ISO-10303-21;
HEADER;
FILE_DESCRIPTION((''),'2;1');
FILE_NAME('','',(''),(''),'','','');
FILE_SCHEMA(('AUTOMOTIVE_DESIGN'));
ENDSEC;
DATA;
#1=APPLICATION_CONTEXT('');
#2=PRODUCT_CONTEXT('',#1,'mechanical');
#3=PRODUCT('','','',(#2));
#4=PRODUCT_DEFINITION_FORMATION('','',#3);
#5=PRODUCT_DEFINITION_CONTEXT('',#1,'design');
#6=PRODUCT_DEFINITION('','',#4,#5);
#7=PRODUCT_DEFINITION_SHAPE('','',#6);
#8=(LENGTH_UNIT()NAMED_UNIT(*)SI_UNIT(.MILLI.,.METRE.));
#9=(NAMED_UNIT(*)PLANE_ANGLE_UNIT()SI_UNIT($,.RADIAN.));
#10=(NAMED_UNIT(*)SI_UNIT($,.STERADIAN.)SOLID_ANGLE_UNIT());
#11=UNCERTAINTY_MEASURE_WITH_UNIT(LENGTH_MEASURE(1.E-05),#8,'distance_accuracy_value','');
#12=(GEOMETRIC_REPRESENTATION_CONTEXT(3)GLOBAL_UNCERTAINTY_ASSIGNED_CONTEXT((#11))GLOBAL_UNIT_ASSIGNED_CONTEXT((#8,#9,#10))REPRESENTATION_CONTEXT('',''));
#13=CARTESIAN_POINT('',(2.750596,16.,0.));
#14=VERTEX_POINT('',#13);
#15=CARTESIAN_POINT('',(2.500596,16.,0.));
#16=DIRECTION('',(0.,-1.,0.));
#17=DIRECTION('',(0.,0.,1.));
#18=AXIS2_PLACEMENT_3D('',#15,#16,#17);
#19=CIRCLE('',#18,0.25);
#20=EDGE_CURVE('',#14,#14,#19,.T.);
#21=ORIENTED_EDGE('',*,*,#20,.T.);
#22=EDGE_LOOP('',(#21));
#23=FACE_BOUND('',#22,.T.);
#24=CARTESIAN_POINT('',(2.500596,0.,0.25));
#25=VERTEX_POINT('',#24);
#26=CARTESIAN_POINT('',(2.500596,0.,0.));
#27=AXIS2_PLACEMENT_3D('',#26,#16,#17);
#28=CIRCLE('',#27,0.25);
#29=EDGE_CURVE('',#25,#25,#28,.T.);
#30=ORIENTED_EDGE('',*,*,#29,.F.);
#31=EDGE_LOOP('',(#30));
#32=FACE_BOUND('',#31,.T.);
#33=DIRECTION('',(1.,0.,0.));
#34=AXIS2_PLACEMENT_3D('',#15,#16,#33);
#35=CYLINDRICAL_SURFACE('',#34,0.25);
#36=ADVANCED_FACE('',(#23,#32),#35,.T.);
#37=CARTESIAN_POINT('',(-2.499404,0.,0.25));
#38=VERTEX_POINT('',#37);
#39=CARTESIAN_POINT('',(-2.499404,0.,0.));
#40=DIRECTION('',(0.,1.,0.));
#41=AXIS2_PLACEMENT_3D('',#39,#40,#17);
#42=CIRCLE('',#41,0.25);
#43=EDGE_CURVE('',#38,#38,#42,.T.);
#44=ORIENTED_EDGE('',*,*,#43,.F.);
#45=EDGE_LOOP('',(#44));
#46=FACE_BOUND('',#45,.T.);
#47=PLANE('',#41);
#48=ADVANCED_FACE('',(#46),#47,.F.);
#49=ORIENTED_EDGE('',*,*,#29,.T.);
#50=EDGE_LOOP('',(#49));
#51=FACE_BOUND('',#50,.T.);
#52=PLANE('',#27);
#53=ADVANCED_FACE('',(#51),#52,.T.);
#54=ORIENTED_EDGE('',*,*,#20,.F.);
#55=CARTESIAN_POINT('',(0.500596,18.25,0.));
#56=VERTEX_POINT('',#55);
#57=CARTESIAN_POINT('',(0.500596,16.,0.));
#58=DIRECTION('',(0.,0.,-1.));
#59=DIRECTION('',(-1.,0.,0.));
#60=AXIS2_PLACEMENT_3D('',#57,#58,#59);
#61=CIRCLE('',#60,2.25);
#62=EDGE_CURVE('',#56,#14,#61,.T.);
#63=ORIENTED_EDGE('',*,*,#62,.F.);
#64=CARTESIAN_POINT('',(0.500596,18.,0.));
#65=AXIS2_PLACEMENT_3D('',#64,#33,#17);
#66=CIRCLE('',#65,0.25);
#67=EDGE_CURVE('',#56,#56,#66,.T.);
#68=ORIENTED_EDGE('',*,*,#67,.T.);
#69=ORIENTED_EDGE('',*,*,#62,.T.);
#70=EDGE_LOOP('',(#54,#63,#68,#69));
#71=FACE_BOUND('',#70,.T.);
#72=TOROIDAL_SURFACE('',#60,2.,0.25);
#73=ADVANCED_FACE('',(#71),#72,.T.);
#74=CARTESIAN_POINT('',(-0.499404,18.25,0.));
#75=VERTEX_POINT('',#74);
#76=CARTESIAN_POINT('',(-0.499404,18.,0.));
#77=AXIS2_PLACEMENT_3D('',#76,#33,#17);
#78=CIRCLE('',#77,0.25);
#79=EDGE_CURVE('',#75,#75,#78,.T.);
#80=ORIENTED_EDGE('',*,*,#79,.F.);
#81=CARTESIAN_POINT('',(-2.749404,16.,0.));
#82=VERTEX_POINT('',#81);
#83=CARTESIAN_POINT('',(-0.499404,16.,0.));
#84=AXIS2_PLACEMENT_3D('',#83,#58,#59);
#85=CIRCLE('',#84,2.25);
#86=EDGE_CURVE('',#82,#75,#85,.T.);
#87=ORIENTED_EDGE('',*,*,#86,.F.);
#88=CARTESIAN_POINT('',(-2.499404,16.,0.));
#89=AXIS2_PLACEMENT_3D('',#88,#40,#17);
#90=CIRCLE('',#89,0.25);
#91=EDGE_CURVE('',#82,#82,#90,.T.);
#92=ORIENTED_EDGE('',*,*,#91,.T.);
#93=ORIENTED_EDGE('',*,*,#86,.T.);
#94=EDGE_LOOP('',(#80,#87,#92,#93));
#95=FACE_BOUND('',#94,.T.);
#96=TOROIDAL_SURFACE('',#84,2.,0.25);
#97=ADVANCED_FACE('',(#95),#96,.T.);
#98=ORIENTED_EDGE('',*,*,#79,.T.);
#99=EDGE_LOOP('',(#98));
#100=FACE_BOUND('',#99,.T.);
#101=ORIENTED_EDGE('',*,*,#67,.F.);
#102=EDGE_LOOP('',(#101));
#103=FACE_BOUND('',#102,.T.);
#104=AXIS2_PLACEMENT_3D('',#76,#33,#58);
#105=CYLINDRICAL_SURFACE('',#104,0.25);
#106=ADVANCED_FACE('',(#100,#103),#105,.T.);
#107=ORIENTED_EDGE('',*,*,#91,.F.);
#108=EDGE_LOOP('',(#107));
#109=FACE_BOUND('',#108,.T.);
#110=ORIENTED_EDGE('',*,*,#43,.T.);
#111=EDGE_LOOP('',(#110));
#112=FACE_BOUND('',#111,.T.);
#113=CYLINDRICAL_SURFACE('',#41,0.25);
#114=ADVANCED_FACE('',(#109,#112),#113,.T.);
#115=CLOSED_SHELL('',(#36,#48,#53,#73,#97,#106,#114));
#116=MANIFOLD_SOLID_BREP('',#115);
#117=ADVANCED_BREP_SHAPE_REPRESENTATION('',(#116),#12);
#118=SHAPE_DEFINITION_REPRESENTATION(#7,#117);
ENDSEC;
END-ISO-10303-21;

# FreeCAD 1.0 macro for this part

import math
import FreeCAD as App
import Part
import Sketcher

V = App.Vector
Q = App.Units.Quantity

doc = App.newDocument("Part")
body = doc.addObject("PartDesign::Body", "Body")

# Sketch on XZ plane
sketch1 = body.newObject("Sketcher::SketchObject", "Sketch")
sketch1.AttachmentSupport = (doc.getObject("XZ_Plane"), [""])
sketch1.MapMode = "FlatFace"
sketch1.addGeometry(Part.Circle(V(-2.5, 0, 0), V(0, 0, 1), 0.25), False)
sketch1.addConstraint(Sketcher.Constraint("PointOnObject", 0, 3, -1))
sketch1.addConstraint(Sketcher.Constraint("Diameter", 0, Q("0.5 mm")))
sketch1.addConstraint(Sketcher.Constraint("DistanceX", 0, 3, -1, 1, Q("2.499404 mm")))

# Sketch on XY plane
sketch2 = body.newObject("Sketcher::SketchObject", "Sketch001")
sketch2.AttachmentSupport = (doc.getObject("XY_Plane"), [""])
sketch2.MapMode = "FlatFace"
sketch2.addGeometry(Part.LineSegment(V(-2.5, 0, 0), V(-2.5, 16, 0)), False)
sketch2.addGeometry(Part.ArcOfCircle(Part.Circle(V(-0.5, 16, 0), V(0, 0, 1), 2), math.radians(90), math.radians(180)), False)
sketch2.addGeometry(Part.LineSegment(V(-0.5, 18, 0), V(0.5, 18, 0)), False)
sketch2.addGeometry(Part.ArcOfCircle(Part.Circle(V(0.5, 16, 0), V(0, 0, 1), 2), math.radians(0), math.radians(90)), False)
sketch2.addGeometry(Part.LineSegment(V(2.5, 16, 0), V(2.5, 0, 0)), False)
sketch2.addConstraint(Sketcher.Constraint("Tangent", 0, 2, 1, 2))
sketch2.addConstraint(Sketcher.Constraint("Tangent", 1, 1, 2, 1))
sketch2.addConstraint(Sketcher.Constraint("Tangent", 2, 2, 3, 2))
sketch2.addConstraint(Sketcher.Constraint("Tangent", 3, 1, 4, 1))
sketch2.addConstraint(Sketcher.Constraint("Vertical", 0))
sketch2.addConstraint(Sketcher.Constraint("Horizontal", 2))
sketch2.addConstraint(Sketcher.Constraint("Vertical", 4))
sketch2.addConstraint(Sketcher.Constraint("Equal", 1, 3))
sketch2.addConstraint(Sketcher.Constraint("PointOnObject", 0, 1, -1))
sketch2.addConstraint(Sketcher.Constraint("PointOnObject", 4, 2, -1))
sketch2.addConstraint(Sketcher.Constraint("Radius", 1, Q("2 mm")))
sketch2.addConstraint(Sketcher.Constraint("DistanceX", 2, 1, 2, 2, Q("1 mm")))
sketch2.addConstraint(Sketcher.Constraint("DistanceY", 0, 1, 0, 2, Q("16 mm")))
sketch2.addConstraint(Sketcher.Constraint("DistanceX", 1, 3, -1, 1, Q("0.499404 mm")))
doc.recompute()

additivepipe = body.newObject("PartDesign::AdditivePipe", "AdditivePipe")
additivepipe.Profile = sketch1
additivepipe.Spine = (sketch2, ["Edge1", "Edge2", "Edge3", "Edge4", "Edge5"])

doc.recompute()
